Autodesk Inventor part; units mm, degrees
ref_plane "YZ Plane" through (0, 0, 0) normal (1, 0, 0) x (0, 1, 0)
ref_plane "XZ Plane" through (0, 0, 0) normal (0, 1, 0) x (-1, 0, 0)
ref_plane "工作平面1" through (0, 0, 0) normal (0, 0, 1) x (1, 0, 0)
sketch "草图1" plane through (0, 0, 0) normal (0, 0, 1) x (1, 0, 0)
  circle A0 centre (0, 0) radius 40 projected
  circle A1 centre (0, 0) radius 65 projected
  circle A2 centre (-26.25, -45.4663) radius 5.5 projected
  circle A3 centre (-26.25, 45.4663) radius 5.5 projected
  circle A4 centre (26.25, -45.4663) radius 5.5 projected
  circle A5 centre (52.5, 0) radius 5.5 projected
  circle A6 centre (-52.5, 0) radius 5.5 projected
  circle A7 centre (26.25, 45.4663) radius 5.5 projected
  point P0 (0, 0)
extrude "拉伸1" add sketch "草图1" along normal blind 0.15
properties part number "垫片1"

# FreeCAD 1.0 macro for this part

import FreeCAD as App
import Part
import Sketcher
Q = App.Units.Quantity

doc = App.newDocument("Part")
body = doc.addObject("PartDesign::Body", "Body")

# Sketch on XY plane
sketch1 = body.newObject("Sketcher::SketchObject", "Sketch")
sketch1.AttachmentSupport = (doc.getObject("XY_Plane"), [""])
sketch1.MapMode = "FlatFace"
sketch1.addGeometry(Part.Circle(App.Vector(0, 0, 0), App.Vector(0, 0, 1), 65), False)
sketch1.addGeometry(Part.Circle(App.Vector(-26, -45, 0), App.Vector(0, 0, 1), 6), False)
sketch1.addGeometry(Part.Circle(App.Vector(26, -45, 0), App.Vector(0, 0, 1), 6), False)
sketch1.addGeometry(Part.Circle(App.Vector(-52, 0, 0), App.Vector(0, 0, 1), 6), False)
sketch1.addGeometry(Part.Circle(App.Vector(-26, 45, 0), App.Vector(0, 0, 1), 6), False)
sketch1.addGeometry(Part.Circle(App.Vector(0, 0, 0), App.Vector(0, 0, 1), 40), False)
sketch1.addGeometry(Part.Circle(App.Vector(52, 0, 0), App.Vector(0, 0, 1), 6), False)
sketch1.addGeometry(Part.Circle(App.Vector(26, 45, 0), App.Vector(0, 0, 1), 6), False)
sketch1.addConstraint(Sketcher.Constraint("Coincident", 0, 3, -1, 1))
sketch1.addConstraint(Sketcher.Constraint("Coincident", 5, 3, -1, 1))
sketch1.addConstraint(Sketcher.Constraint("Equal", 1, 2))
sketch1.addConstraint(Sketcher.Constraint("Equal", 2, 3))
sketch1.addConstraint(Sketcher.Constraint("Equal", 3, 4))
sketch1.addConstraint(Sketcher.Constraint("Equal", 4, 6))
sketch1.addConstraint(Sketcher.Constraint("Equal", 6, 7))
sketch1.addConstraint(Sketcher.Constraint("Symmetric", 2, 3, 4, 3, -1, 1))
sketch1.addConstraint(Sketcher.Constraint("Symmetric", 3, 3, 6, 3, -1, 1))
sketch1.addConstraint(Sketcher.Constraint("Symmetric", 1, 3, 7, 3, -1, 1))
sketch1.addConstraint(Sketcher.Constraint("Symmetric", 1, 3, 2, 3, -2))
sketch1.addConstraint(Sketcher.Constraint("PointOnObject", 3, 3, -1))
sketch1.addConstraint(Sketcher.Constraint("Diameter", 0, Q("130 mm")))
sketch1.addConstraint(Sketcher.Constraint("Diameter", 1, Q("11 mm")))
sketch1.addConstraint(Sketcher.Constraint("Diameter", 5, Q("80 mm")))
sketch1.addConstraint(Sketcher.Constraint("DistanceX", 3, 3, -1, 1, Q("52.5 mm")))
sketch1.addConstraint(Sketcher.Constraint("DistanceX", 1, 3, 2, 3, Q("52.5 mm")))
sketch1.addConstraint(Sketcher.Constraint("DistanceY", 1, 3, -1, 1, Q("45.4663 mm")))
pad1 = body.newObject("PartDesign::Pad", "Pad")
pad1.Profile = sketch1
pad1.Length = 0.15

doc.recompute()
